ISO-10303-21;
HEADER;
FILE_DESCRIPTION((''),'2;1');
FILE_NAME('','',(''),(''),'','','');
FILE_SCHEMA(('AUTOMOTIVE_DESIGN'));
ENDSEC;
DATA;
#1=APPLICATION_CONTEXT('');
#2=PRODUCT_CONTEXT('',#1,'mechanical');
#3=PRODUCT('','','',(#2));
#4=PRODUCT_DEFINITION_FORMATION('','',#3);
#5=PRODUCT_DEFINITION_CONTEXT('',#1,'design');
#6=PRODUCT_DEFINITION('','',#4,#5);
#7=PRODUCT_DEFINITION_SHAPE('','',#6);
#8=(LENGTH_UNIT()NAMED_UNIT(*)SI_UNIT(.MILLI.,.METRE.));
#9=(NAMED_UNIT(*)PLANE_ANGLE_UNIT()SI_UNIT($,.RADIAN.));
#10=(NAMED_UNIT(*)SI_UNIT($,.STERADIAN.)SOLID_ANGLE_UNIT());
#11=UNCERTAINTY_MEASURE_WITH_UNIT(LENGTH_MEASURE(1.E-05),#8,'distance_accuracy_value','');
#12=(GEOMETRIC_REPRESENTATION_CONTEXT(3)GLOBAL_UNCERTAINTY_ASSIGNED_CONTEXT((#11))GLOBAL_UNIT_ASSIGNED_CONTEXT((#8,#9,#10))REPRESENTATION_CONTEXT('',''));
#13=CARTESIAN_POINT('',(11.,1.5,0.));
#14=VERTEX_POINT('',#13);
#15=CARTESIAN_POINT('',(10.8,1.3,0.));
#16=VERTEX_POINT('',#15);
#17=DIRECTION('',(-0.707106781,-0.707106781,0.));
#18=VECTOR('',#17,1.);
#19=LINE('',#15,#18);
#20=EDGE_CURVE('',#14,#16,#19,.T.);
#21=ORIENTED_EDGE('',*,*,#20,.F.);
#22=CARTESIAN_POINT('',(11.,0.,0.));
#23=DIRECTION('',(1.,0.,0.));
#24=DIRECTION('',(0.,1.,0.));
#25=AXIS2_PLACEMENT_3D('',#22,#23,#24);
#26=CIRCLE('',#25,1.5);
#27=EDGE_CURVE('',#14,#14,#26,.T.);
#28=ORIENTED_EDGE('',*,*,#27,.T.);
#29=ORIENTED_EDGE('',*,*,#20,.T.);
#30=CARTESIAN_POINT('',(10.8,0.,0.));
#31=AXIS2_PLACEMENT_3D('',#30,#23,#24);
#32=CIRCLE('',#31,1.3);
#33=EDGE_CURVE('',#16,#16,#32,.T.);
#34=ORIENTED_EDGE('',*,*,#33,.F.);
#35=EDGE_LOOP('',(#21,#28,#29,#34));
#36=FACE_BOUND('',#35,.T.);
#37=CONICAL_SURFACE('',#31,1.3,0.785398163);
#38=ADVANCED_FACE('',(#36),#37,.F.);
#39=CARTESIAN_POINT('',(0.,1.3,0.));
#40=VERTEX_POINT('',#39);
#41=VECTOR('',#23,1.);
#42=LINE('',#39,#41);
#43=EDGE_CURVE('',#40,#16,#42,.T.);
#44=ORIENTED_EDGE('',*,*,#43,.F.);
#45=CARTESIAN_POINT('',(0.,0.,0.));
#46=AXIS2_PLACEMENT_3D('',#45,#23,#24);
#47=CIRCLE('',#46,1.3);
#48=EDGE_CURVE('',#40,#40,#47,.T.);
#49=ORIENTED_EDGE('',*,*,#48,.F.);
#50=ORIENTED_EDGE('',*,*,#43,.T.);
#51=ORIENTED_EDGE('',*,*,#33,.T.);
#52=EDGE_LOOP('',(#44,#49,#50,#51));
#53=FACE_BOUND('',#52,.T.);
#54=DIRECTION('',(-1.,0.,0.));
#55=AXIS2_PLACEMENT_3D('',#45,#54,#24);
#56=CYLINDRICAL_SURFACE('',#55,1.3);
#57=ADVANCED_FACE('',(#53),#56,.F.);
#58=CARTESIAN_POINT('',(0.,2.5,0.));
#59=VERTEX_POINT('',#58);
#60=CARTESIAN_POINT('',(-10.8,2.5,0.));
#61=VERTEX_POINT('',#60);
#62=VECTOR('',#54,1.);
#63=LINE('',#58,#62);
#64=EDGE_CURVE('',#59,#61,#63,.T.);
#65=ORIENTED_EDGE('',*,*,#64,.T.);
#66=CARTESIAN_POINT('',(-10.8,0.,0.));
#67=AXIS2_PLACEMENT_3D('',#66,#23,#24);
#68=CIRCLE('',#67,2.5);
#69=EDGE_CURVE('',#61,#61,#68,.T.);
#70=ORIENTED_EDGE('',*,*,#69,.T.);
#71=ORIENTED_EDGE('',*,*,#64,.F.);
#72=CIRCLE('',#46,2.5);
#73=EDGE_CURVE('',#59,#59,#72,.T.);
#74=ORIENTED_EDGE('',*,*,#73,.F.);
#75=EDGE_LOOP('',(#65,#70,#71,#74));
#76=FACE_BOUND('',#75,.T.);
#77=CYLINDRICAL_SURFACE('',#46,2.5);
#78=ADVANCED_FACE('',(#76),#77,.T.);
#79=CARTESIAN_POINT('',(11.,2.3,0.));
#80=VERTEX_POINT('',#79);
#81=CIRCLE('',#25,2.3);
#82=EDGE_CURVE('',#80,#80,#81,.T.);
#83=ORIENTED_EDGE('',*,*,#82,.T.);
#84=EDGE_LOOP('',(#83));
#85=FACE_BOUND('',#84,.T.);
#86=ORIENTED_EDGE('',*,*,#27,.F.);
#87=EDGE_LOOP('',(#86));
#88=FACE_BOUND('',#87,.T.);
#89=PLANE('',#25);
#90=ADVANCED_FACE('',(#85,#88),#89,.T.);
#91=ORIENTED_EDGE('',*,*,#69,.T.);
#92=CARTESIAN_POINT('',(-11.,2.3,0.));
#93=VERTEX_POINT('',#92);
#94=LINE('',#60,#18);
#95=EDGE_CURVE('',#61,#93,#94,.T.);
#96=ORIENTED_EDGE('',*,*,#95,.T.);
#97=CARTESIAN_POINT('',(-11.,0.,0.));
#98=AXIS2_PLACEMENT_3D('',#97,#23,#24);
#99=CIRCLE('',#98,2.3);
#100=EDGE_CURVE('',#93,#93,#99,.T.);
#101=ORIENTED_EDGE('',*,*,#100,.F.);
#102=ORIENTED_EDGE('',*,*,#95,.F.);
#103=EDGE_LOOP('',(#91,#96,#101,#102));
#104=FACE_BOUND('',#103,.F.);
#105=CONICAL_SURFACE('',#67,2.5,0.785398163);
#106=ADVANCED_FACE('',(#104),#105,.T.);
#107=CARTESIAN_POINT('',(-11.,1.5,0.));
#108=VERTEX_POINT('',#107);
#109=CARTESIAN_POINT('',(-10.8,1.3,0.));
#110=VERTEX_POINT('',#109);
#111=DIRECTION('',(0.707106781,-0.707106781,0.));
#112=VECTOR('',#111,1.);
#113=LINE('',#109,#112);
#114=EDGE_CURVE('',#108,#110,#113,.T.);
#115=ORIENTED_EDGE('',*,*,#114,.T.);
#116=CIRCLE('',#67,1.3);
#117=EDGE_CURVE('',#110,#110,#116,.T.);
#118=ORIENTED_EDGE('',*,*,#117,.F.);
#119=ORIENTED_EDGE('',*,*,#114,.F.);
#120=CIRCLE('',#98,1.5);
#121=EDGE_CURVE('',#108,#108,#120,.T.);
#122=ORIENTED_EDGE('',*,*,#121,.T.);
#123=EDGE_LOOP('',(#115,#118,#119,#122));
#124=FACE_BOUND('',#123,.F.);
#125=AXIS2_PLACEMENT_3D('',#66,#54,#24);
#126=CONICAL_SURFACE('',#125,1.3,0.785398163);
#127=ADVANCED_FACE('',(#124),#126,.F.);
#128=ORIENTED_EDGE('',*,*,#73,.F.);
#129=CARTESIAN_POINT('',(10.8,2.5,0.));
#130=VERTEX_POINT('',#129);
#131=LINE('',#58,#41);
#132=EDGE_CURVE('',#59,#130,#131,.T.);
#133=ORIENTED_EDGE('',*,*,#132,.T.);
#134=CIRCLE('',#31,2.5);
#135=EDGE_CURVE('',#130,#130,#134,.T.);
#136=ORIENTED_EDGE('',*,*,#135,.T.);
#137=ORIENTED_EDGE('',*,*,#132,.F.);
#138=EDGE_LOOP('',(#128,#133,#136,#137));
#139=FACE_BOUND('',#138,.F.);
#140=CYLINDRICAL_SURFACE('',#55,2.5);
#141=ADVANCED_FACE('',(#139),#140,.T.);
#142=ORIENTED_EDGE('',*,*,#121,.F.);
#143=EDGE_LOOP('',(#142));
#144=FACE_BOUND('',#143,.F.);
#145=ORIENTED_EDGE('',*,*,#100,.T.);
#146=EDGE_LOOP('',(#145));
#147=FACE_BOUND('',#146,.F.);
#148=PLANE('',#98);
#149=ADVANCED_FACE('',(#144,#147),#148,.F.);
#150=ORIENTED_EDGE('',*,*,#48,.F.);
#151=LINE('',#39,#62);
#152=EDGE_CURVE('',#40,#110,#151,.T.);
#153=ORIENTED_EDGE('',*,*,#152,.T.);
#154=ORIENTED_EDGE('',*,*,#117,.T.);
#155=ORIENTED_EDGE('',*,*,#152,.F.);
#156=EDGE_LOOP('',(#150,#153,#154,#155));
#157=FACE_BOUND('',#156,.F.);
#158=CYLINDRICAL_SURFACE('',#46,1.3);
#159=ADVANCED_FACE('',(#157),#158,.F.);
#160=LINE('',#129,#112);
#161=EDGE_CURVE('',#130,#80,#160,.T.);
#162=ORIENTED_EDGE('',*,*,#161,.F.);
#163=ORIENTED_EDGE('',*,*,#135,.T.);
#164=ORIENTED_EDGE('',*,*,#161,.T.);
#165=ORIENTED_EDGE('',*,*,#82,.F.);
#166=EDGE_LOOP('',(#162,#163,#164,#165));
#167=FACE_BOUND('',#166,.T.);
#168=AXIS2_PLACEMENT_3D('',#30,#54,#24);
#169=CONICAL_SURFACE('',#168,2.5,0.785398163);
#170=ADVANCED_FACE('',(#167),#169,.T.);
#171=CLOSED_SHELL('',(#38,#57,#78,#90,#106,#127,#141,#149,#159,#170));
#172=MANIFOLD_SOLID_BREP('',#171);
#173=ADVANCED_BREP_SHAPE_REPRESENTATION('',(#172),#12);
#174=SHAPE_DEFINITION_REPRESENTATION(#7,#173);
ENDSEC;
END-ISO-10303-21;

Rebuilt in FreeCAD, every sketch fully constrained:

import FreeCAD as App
import Part
import Sketcher
from FreeCAD import Vector
Q = App.Units.Quantity


def edges_at(feature, points):
    """Names of the edges that pass closest to the given points."""
    edges = feature.Shape.Edges
    near = lambda p: min(range(len(edges)), key=lambda i: edges[i].distToShape(Part.Vertex(*p))[0])
    return sorted({f"Edge{near(p) + 1}" for p in points})

doc = App.newDocument("Part")
body = doc.addObject("PartDesign::Body", "Body")

# Sketch on YZ plane
sketch1 = doc.addObject("Sketcher::SketchObject", "Sketch")
body.addObject(sketch1)
sketch1.AttachmentSupport = (doc.YZ_Plane, [""])
sketch1.MapMode = "FlatFace"
sketch1.addGeometry([
    Part.Circle(Vector(0, 0, 0), Vector(0, 0, 1), 2.5),
    Part.Circle(Vector(0, 0, 0), Vector(0, 0, 1), 1.3),
], False)
sketch1.addConstraint([
    Sketcher.Constraint("Coincident", 0, 3, -1, 1),
    Sketcher.Constraint("Coincident", 1, 3, -1, 1),
    Sketcher.Constraint("Diameter", 0, Q("5 mm")),
    Sketcher.Constraint("Diameter", 1, Q("2.6 mm")),
])
pad1 = doc.addObject("PartDesign::Pad", "Pad")
body.addObject(pad1)
pad1.Profile = sketch1
pad1.Length = 22
pad1.Midplane = True
doc.recompute()

chamfer = doc.addObject("PartDesign::Chamfer", "Chamfer")
body.addObject(chamfer)
chamfer.Base = (pad1, edges_at(pad1, [
    (11, -1.3, 0),
    (11, -2.5, 0),
    (-11, -1.3, 0),
    (-11, -2.5, 0),
]))
chamfer.Size = 0.2

doc.recompute()
